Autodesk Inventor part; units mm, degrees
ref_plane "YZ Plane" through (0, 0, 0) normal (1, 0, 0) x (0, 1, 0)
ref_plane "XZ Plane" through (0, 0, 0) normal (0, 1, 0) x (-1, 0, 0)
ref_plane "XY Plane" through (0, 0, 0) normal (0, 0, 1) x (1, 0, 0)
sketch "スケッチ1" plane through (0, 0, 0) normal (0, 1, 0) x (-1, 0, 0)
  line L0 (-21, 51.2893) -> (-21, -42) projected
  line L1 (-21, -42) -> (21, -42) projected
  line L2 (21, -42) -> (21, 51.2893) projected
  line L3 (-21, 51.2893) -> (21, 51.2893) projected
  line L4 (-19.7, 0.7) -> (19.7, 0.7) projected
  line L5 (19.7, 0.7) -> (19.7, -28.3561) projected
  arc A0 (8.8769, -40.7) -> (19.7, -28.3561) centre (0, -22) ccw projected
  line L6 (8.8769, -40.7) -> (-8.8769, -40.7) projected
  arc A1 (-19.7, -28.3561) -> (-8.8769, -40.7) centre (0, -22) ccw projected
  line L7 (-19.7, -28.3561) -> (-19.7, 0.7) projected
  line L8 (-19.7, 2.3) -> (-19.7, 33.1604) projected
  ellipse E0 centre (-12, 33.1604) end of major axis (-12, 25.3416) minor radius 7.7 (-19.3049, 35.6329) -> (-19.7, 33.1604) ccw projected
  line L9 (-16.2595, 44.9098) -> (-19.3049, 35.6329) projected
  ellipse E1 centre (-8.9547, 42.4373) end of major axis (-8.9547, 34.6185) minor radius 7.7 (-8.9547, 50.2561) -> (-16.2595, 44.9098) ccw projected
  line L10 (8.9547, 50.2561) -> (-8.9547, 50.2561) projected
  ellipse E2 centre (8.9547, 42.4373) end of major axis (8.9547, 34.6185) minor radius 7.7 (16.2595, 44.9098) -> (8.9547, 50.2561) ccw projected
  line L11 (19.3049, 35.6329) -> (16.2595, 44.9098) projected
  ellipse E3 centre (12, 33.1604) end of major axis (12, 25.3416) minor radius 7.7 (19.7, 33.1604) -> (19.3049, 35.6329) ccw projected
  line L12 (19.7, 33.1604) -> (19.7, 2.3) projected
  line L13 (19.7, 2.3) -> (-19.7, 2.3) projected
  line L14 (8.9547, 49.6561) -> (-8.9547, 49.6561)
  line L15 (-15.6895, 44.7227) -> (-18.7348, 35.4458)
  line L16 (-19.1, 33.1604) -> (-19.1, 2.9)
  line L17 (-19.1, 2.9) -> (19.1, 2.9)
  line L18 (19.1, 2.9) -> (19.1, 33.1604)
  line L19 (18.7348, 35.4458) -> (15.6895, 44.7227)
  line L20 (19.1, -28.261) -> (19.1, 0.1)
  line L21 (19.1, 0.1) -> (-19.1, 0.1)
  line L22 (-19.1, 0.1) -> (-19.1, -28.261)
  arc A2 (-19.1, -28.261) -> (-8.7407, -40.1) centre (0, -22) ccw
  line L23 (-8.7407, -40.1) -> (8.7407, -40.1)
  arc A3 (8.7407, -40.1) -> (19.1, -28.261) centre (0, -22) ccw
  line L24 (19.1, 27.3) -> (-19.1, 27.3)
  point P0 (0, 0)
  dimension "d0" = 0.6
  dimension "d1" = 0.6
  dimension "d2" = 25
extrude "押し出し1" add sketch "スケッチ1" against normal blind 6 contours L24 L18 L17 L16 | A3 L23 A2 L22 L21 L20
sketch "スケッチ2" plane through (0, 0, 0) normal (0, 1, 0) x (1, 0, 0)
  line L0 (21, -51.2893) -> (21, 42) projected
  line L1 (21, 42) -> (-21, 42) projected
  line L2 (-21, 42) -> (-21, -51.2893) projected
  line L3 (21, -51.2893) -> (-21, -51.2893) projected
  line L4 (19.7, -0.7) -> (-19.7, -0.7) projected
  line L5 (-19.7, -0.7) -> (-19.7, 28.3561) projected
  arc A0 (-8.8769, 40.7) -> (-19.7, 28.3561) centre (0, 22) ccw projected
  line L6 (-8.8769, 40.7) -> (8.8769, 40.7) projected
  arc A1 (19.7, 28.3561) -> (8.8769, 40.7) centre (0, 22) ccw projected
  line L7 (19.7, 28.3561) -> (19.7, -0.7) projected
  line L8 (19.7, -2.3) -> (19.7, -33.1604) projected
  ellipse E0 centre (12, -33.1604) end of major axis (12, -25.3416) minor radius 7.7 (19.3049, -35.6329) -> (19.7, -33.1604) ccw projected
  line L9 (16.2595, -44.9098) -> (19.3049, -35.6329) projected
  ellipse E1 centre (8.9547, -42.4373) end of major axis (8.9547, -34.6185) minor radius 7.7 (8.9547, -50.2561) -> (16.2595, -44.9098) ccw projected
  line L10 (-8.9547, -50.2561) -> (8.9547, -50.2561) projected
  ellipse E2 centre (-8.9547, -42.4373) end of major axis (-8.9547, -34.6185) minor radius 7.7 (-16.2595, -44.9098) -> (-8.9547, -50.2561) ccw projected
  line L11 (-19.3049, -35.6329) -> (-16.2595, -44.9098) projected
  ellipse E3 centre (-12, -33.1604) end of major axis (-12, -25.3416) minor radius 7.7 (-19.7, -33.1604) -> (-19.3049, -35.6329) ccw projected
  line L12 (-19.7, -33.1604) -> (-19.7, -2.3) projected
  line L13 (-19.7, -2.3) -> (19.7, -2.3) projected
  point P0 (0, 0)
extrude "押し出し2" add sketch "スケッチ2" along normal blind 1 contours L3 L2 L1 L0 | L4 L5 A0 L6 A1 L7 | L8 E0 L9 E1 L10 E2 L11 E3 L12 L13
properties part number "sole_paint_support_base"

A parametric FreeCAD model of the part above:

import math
import FreeCAD as App
import Part
import Sketcher

doc = App.newDocument("Part")
body = doc.addObject("PartDesign::Body", "Body")
body.AllowCompound = True

# Sketch on XZ plane
sketch1 = body.newObject("Sketcher::SketchObject", "Sketch")
sketch1.AttachmentSupport = (doc.getObject("XZ_Plane"), [""])
sketch1.MapMode = "FlatFace"
sketch1.addGeometry(Part.LineSegment(App.Vector(-19, 27, 0), App.Vector(19, 27, 0)), False)
sketch1.addGeometry(Part.LineSegment(App.Vector(19, 27, 0), App.Vector(19, 3, 0)), False)
sketch1.addGeometry(Part.LineSegment(App.Vector(19, 3, 0), App.Vector(-19, 3, 0)), False)
sketch1.addGeometry(Part.LineSegment(App.Vector(-19, 3, 0), App.Vector(-19, 27, 0)), False)
sketch1.addGeometry(Part.ArcOfCircle(Part.Circle(App.Vector(0, -22, 0), App.Vector(0, 0, 1), 20), math.radians(-162), math.radians(-116)), False)
sketch1.addGeometry(Part.LineSegment(App.Vector(-19, -28, 0), App.Vector(-19, 0, 0)), False)
sketch1.addGeometry(Part.LineSegment(App.Vector(-19, 0, 0), App.Vector(19, 0, 0)), False)
sketch1.addGeometry(Part.LineSegment(App.Vector(19, 0, 0), App.Vector(19, -28, 0)), False)
sketch1.addGeometry(Part.ArcOfCircle(Part.Circle(App.Vector(0, -22, 0), App.Vector(0, 0, 1), 20), math.radians(-64), math.radians(-18)), False)
sketch1.addGeometry(Part.LineSegment(App.Vector(9, -40, 0), App.Vector(-9, -40, 0)), False)
sketch1.addConstraint(Sketcher.Constraint("Coincident", 0, 2, 1, 1))
sketch1.addConstraint(Sketcher.Constraint("Coincident", 1, 2, 2, 1))
sketch1.addConstraint(Sketcher.Constraint("Coincident", 2, 2, 3, 1))
sketch1.addConstraint(Sketcher.Constraint("Coincident", 3, 2, 0, 1))
sketch1.addConstraint(Sketcher.Constraint("Coincident", 4, 1, 5, 1))
sketch1.addConstraint(Sketcher.Constraint("Coincident", 5, 2, 6, 1))
sketch1.addConstraint(Sketcher.Constraint("Coincident", 6, 2, 7, 1))
sketch1.addConstraint(Sketcher.Constraint("Coincident", 7, 2, 8, 2))
sketch1.addConstraint(Sketcher.Constraint("Coincident", 8, 1, 9, 1))
sketch1.addConstraint(Sketcher.Constraint("Coincident", 9, 2, 4, 2))
sketch1.addConstraint(Sketcher.Constraint("Horizontal", 0))
sketch1.addConstraint(Sketcher.Constraint("Vertical", 1))
sketch1.addConstraint(Sketcher.Constraint("Horizontal", 2))
sketch1.addConstraint(Sketcher.Constraint("Vertical", 3))
sketch1.addConstraint(Sketcher.Constraint("Vertical", 5))
sketch1.addConstraint(Sketcher.Constraint("Horizontal", 6))
sketch1.addConstraint(Sketcher.Constraint("Vertical", 7))
sketch1.addConstraint(Sketcher.Constraint("Horizontal", 9))
sketch1.addConstraint(Sketcher.Constraint("Coincident", 8, 3, 4, 3))
sketch1.addConstraint(Sketcher.Constraint("Equal", 4, 8))
sketch1.addConstraint(Sketcher.Constraint("Symmetric", 4, 1, 7, 2, -2))
sketch1.addConstraint(Sketcher.Constraint("Vertical", 3, 2, 4, 1))
sketch1.addConstraint(Sketcher.Constraint("Vertical", 1, 2, 6, 2))
sketch1.addConstraint(Sketcher.Constraint("Radius", 4, 20.1))
sketch1.addConstraint(Sketcher.Constraint("DistanceX", 0, 1, 0, 2, 38.2))
sketch1.addConstraint(Sketcher.Constraint("DistanceY", 1, 2, 1, 1, 24.4))
sketch1.addConstraint(Sketcher.Constraint("DistanceY", 4, 3, -1, 1, 22.0))
sketch1.addConstraint(Sketcher.Constraint("DistanceY", -1, 1, 0, 2, 27.3))
sketch1.addConstraint(Sketcher.Constraint("DistanceY", -1, 1, 5, 2, 0.1))
sketch1.addConstraint(Sketcher.Constraint("DistanceY", 8, 1, -1, 1, 40.1))
pad1 = body.newObject("PartDesign::Pad", "Pad")
pad1.Profile = sketch1
pad1.Length = 6

# Sketch on XZ plane
sketch2 = body.newObject("Sketcher::SketchObject", "Sketch001")
sketch2.AttachmentSupport = (doc.getObject("XZ_Plane"), [""])
sketch2.MapMode = "FlatFace"
sketch2.addGeometry(Part.LineSegment(App.Vector(-21, 51, 0), App.Vector(21, 51, 0)), False)
sketch2.addGeometry(Part.LineSegment(App.Vector(21, 51, 0), App.Vector(21, -42, 0)), False)
sketch2.addGeometry(Part.LineSegment(App.Vector(21, -42, 0), App.Vector(-21, -42, 0)), False)
sketch2.addGeometry(Part.LineSegment(App.Vector(-21, -42, 0), App.Vector(-21, 51, 0)), False)
sketch2.addConstraint(Sketcher.Constraint("Coincident", 0, 2, 1, 1))
sketch2.addConstraint(Sketcher.Constraint("Coincident", 1, 2, 2, 1))
sketch2.addConstraint(Sketcher.Constraint("Coincident", 2, 2, 3, 1))
sketch2.addConstraint(Sketcher.Constraint("Coincident", 3, 2, 0, 1))
sketch2.addConstraint(Sketcher.Constraint("Horizontal", 0))
sketch2.addConstraint(Sketcher.Constraint("Vertical", 1))
sketch2.addConstraint(Sketcher.Constraint("Horizontal", 2))
sketch2.addConstraint(Sketcher.Constraint("Vertical", 3))
sketch2.addConstraint(Sketcher.Constraint("DistanceX", 0, 1, 0, 2, 42.0))
sketch2.addConstraint(Sketcher.Constraint("DistanceX", -1, 1, 0, 2, 21.0))
sketch2.addConstraint(Sketcher.Constraint("DistanceY", 1, 2, -1, 1, 42.0))
sketch2.addConstraint(Sketcher.Constraint("DistanceY", 1, 2, 1, 1, 93.2893))
pad2 = body.newObject("PartDesign::Pad", "Pad001")
pad2.Profile = sketch2
pad2.Length = 1
pad2.Reversed = True

doc.recompute()
